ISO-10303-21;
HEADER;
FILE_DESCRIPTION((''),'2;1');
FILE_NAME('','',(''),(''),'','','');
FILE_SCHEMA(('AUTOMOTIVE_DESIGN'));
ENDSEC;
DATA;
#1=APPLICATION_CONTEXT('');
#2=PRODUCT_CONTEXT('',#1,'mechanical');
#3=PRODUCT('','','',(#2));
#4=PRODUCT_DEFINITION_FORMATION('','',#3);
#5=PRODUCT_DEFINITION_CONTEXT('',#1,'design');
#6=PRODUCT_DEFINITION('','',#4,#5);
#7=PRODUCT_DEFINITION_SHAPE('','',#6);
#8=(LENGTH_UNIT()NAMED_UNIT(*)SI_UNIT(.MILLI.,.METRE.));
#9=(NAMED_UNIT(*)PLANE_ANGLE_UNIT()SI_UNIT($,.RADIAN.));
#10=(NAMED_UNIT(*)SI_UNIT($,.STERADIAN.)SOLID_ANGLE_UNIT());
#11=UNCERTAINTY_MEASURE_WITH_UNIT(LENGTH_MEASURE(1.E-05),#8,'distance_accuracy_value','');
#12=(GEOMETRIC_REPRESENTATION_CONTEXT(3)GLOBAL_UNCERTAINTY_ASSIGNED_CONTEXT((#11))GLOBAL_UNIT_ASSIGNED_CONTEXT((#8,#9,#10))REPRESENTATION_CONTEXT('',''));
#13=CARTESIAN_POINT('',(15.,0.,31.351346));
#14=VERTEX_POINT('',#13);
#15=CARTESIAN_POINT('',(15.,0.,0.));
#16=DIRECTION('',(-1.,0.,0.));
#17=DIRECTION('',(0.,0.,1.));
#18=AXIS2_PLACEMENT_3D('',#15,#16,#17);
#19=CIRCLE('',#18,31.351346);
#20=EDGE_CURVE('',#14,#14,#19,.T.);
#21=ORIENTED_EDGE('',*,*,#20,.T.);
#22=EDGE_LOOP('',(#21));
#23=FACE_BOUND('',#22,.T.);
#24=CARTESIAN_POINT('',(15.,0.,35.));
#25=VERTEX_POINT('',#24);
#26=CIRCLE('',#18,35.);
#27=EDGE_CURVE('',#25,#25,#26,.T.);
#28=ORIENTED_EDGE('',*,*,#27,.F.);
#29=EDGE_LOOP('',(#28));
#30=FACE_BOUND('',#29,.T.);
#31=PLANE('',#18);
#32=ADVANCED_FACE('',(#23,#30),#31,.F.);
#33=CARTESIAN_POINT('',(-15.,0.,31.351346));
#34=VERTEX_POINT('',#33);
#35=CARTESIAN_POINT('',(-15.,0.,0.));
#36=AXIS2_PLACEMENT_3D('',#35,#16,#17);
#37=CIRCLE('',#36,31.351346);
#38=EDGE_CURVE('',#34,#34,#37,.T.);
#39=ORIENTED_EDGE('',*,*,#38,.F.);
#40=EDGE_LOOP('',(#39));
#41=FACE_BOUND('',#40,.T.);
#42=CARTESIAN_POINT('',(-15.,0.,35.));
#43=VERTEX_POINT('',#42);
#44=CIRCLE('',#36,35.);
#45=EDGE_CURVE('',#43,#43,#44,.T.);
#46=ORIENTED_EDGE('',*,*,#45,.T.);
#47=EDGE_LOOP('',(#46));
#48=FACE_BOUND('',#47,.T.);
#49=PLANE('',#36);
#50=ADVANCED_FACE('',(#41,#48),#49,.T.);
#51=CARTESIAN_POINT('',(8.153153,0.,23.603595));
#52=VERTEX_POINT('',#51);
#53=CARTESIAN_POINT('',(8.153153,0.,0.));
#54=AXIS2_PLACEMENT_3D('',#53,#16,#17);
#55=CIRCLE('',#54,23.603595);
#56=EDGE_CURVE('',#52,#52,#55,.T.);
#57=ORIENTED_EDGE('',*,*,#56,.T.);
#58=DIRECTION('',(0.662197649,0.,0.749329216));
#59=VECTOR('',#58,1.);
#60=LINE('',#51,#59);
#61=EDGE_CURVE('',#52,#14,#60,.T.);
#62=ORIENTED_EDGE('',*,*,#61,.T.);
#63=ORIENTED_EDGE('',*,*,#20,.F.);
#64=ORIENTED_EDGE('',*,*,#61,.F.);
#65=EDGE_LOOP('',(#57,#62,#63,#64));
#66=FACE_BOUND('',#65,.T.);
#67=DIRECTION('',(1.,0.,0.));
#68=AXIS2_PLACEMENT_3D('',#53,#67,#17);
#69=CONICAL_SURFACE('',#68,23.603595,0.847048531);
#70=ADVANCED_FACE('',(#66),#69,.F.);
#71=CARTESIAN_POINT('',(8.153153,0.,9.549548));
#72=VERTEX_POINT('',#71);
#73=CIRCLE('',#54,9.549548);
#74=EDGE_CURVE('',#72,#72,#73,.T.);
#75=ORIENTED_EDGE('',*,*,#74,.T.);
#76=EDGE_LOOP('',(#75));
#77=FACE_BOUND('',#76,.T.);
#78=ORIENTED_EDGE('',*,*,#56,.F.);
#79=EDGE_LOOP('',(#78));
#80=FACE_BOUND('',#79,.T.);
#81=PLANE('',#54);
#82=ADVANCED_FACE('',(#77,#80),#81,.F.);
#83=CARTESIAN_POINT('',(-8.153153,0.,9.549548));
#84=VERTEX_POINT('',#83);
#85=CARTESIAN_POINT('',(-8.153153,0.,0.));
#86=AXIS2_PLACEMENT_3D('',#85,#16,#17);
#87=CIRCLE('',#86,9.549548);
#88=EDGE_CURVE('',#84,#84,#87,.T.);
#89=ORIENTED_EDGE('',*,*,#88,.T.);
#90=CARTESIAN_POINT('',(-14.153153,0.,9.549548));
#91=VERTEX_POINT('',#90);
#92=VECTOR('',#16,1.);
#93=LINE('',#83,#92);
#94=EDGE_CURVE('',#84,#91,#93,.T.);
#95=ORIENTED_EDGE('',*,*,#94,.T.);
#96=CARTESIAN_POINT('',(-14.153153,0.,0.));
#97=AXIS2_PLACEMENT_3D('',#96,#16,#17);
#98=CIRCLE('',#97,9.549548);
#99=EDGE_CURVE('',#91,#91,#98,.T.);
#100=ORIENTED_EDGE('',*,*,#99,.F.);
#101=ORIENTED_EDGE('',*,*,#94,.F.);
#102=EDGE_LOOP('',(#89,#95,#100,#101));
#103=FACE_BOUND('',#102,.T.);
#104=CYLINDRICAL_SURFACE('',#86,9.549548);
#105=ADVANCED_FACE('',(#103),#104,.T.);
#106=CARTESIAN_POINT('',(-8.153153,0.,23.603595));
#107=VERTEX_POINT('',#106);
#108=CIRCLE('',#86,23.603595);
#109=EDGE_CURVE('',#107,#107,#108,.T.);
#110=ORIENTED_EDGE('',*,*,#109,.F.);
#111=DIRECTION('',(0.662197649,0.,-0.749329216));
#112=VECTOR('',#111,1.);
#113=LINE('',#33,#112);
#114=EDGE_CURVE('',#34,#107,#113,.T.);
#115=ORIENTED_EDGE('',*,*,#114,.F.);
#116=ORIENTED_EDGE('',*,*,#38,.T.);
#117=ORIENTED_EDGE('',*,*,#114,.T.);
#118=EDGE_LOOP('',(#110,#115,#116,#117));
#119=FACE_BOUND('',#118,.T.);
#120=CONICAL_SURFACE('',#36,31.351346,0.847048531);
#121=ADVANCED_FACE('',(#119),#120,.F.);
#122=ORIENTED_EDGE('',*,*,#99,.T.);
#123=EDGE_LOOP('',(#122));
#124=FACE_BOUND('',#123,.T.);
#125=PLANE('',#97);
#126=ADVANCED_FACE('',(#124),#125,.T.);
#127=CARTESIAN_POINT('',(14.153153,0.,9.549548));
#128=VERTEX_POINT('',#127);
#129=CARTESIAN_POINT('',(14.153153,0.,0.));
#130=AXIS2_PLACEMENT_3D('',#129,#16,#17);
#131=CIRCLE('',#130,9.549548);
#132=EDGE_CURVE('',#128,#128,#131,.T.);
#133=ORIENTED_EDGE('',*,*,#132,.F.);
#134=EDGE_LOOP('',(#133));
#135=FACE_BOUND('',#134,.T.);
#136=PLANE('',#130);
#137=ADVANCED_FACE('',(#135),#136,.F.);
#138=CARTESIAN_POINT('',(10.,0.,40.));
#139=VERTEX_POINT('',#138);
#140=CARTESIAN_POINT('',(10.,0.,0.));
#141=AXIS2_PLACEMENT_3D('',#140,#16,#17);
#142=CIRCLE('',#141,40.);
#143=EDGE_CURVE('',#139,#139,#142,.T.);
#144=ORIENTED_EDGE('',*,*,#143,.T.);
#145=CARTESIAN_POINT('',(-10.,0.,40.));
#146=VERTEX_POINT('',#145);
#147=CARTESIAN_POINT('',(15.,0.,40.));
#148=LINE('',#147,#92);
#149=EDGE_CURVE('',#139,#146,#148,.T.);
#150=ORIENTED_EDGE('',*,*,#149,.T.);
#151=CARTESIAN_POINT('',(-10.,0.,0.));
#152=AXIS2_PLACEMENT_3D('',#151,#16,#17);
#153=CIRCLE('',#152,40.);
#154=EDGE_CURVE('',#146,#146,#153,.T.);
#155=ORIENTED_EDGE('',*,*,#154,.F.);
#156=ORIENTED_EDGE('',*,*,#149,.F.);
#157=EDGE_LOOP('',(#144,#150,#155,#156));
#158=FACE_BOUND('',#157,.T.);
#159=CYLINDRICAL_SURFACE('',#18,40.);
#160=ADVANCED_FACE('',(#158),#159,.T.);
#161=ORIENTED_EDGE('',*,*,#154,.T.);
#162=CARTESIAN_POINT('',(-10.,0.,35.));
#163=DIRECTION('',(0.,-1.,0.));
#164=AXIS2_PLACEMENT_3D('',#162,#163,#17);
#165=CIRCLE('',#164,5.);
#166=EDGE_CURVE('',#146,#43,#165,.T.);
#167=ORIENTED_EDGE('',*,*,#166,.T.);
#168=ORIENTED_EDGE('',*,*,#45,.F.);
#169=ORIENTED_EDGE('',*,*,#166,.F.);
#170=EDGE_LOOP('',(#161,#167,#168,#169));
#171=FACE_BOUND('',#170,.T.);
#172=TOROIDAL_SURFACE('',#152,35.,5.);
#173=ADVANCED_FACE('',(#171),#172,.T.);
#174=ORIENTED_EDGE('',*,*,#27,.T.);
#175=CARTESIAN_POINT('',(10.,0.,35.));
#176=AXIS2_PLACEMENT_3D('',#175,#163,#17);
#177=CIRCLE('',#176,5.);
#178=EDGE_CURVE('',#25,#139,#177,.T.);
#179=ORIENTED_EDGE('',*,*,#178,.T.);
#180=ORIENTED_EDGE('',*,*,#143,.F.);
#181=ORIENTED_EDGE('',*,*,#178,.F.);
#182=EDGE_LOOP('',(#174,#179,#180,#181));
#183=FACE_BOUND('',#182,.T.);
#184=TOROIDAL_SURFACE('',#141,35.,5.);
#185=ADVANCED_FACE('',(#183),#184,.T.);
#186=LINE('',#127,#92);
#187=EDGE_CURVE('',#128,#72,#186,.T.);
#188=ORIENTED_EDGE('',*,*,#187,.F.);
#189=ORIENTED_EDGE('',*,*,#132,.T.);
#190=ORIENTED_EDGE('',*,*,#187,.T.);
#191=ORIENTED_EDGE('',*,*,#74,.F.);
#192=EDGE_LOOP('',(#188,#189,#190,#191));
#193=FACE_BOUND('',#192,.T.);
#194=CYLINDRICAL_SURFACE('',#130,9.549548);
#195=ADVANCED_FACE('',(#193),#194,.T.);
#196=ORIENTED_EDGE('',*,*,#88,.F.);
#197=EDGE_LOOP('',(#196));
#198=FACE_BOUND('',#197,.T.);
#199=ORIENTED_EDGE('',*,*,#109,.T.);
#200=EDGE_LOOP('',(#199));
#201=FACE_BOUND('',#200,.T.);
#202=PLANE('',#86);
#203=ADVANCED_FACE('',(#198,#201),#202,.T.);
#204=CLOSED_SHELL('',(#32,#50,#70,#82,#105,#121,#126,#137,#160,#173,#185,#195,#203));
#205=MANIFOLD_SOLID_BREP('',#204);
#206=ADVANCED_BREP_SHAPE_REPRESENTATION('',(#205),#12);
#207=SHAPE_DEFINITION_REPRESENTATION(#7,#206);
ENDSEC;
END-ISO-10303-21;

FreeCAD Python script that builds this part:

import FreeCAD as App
import Part
import Sketcher
Q = App.Units.Quantity


def edges_at(feature, points):
    """Names of the edges that pass closest to the given points."""
    edges = feature.Shape.Edges
    near = lambda p: min(range(len(edges)), key=lambda i: edges[i].distToShape(Part.Vertex(*p))[0])
    return sorted({f"Edge{near(p) + 1}" for p in points})


def add_polygon(sketch, points):
    """Adds a closed chain of lines whose ends are joined by coincident constraints."""
    first, n = sketch.GeometryCount, len(points)
    for a, b in zip(points, points[1:] + points[:1]):
        sketch.addGeometry(Part.LineSegment(App.Vector(*a, 0), App.Vector(*b, 0)), False)
    for i in range(n):
        sketch.addConstraint(Sketcher.Constraint("Coincident", first + i, 2, first + (i + 1) % n, 1))

doc = App.newDocument("Part")
body = doc.addObject("PartDesign::Body", "Body")

# Sketch on XZ plane
sketch1 = doc.addObject("Sketcher::SketchObject", "Sketch")
body.addObject(sketch1)
sketch1.AttachmentSupport = (doc.XZ_Plane, [""])
sketch1.MapMode = "FlatFace"
add_polygon(sketch1, [(-14.153153, 0), (14.153153, 0), (14.153153, 9.549548), (8.153153, 9.549548), (8.153153, 23.603595), (15, 31.351346), (15, 40), (-15, 40), (-15, 31.351346), (-8.153153, 23.603595), (-8.153153, 9.549548), (-14.153153, 9.549548)])  # lines 0-11
sketch1.addConstraint([
    Sketcher.Constraint("Horizontal", 0),
    Sketcher.Constraint("Vertical", 1),
    Sketcher.Constraint("Horizontal", 2),
    Sketcher.Constraint("Vertical", 3),
    Sketcher.Constraint("Vertical", 5),
    Sketcher.Constraint("Horizontal", 6),
    Sketcher.Constraint("Vertical", 7),
    Sketcher.Constraint("Vertical", 9),
    Sketcher.Constraint("Horizontal", 10),
    Sketcher.Constraint("Vertical", 11),
    Sketcher.Constraint("Symmetric", 0, 2, 11, 2, -1, 1),
    Sketcher.Constraint("Symmetric", 4, 2, 7, 2, -2),
    Sketcher.Constraint("Symmetric", 3, 2, 8, 2, -2),
    Sketcher.Constraint("Horizontal", 2, 2, 9, 2),
    Sketcher.Constraint("DistanceX", 2, 2, 2, 1, Q("6 mm")),
    Sketcher.Constraint("DistanceX", 6, 2, 6, 1, Q("30 mm")),
    Sketcher.Constraint("DistanceY", -1, 1, 5, 2, Q("40 mm")),
    Sketcher.Constraint("DistanceX", 0, 1, 0, 2, Q("28.306306 mm")),
    Sketcher.Constraint("DistanceY", 1, 1, 1, 2, Q("9.549548 mm")),
    Sketcher.Constraint("DistanceY", 3, 1, 3, 2, Q("14.054047 mm")),
    Sketcher.Constraint("DistanceY", 5, 1, 5, 2, Q("8.648654 mm")),
])
revolution = doc.addObject("PartDesign::Revolution", "Revolution")
body.addObject(revolution)
revolution.Profile = sketch1
revolution.ReferenceAxis = (sketch1, ["H_Axis"])
revolution.Angle = 360
doc.recompute()

fillet = doc.addObject("PartDesign::Fillet", "Fillet")
body.addObject(fillet)
fillet.Base = (revolution, edges_at(revolution, [(15, 0, -40), (-15, 0, -40)]))
fillet.Radius = 5

doc.recompute()
